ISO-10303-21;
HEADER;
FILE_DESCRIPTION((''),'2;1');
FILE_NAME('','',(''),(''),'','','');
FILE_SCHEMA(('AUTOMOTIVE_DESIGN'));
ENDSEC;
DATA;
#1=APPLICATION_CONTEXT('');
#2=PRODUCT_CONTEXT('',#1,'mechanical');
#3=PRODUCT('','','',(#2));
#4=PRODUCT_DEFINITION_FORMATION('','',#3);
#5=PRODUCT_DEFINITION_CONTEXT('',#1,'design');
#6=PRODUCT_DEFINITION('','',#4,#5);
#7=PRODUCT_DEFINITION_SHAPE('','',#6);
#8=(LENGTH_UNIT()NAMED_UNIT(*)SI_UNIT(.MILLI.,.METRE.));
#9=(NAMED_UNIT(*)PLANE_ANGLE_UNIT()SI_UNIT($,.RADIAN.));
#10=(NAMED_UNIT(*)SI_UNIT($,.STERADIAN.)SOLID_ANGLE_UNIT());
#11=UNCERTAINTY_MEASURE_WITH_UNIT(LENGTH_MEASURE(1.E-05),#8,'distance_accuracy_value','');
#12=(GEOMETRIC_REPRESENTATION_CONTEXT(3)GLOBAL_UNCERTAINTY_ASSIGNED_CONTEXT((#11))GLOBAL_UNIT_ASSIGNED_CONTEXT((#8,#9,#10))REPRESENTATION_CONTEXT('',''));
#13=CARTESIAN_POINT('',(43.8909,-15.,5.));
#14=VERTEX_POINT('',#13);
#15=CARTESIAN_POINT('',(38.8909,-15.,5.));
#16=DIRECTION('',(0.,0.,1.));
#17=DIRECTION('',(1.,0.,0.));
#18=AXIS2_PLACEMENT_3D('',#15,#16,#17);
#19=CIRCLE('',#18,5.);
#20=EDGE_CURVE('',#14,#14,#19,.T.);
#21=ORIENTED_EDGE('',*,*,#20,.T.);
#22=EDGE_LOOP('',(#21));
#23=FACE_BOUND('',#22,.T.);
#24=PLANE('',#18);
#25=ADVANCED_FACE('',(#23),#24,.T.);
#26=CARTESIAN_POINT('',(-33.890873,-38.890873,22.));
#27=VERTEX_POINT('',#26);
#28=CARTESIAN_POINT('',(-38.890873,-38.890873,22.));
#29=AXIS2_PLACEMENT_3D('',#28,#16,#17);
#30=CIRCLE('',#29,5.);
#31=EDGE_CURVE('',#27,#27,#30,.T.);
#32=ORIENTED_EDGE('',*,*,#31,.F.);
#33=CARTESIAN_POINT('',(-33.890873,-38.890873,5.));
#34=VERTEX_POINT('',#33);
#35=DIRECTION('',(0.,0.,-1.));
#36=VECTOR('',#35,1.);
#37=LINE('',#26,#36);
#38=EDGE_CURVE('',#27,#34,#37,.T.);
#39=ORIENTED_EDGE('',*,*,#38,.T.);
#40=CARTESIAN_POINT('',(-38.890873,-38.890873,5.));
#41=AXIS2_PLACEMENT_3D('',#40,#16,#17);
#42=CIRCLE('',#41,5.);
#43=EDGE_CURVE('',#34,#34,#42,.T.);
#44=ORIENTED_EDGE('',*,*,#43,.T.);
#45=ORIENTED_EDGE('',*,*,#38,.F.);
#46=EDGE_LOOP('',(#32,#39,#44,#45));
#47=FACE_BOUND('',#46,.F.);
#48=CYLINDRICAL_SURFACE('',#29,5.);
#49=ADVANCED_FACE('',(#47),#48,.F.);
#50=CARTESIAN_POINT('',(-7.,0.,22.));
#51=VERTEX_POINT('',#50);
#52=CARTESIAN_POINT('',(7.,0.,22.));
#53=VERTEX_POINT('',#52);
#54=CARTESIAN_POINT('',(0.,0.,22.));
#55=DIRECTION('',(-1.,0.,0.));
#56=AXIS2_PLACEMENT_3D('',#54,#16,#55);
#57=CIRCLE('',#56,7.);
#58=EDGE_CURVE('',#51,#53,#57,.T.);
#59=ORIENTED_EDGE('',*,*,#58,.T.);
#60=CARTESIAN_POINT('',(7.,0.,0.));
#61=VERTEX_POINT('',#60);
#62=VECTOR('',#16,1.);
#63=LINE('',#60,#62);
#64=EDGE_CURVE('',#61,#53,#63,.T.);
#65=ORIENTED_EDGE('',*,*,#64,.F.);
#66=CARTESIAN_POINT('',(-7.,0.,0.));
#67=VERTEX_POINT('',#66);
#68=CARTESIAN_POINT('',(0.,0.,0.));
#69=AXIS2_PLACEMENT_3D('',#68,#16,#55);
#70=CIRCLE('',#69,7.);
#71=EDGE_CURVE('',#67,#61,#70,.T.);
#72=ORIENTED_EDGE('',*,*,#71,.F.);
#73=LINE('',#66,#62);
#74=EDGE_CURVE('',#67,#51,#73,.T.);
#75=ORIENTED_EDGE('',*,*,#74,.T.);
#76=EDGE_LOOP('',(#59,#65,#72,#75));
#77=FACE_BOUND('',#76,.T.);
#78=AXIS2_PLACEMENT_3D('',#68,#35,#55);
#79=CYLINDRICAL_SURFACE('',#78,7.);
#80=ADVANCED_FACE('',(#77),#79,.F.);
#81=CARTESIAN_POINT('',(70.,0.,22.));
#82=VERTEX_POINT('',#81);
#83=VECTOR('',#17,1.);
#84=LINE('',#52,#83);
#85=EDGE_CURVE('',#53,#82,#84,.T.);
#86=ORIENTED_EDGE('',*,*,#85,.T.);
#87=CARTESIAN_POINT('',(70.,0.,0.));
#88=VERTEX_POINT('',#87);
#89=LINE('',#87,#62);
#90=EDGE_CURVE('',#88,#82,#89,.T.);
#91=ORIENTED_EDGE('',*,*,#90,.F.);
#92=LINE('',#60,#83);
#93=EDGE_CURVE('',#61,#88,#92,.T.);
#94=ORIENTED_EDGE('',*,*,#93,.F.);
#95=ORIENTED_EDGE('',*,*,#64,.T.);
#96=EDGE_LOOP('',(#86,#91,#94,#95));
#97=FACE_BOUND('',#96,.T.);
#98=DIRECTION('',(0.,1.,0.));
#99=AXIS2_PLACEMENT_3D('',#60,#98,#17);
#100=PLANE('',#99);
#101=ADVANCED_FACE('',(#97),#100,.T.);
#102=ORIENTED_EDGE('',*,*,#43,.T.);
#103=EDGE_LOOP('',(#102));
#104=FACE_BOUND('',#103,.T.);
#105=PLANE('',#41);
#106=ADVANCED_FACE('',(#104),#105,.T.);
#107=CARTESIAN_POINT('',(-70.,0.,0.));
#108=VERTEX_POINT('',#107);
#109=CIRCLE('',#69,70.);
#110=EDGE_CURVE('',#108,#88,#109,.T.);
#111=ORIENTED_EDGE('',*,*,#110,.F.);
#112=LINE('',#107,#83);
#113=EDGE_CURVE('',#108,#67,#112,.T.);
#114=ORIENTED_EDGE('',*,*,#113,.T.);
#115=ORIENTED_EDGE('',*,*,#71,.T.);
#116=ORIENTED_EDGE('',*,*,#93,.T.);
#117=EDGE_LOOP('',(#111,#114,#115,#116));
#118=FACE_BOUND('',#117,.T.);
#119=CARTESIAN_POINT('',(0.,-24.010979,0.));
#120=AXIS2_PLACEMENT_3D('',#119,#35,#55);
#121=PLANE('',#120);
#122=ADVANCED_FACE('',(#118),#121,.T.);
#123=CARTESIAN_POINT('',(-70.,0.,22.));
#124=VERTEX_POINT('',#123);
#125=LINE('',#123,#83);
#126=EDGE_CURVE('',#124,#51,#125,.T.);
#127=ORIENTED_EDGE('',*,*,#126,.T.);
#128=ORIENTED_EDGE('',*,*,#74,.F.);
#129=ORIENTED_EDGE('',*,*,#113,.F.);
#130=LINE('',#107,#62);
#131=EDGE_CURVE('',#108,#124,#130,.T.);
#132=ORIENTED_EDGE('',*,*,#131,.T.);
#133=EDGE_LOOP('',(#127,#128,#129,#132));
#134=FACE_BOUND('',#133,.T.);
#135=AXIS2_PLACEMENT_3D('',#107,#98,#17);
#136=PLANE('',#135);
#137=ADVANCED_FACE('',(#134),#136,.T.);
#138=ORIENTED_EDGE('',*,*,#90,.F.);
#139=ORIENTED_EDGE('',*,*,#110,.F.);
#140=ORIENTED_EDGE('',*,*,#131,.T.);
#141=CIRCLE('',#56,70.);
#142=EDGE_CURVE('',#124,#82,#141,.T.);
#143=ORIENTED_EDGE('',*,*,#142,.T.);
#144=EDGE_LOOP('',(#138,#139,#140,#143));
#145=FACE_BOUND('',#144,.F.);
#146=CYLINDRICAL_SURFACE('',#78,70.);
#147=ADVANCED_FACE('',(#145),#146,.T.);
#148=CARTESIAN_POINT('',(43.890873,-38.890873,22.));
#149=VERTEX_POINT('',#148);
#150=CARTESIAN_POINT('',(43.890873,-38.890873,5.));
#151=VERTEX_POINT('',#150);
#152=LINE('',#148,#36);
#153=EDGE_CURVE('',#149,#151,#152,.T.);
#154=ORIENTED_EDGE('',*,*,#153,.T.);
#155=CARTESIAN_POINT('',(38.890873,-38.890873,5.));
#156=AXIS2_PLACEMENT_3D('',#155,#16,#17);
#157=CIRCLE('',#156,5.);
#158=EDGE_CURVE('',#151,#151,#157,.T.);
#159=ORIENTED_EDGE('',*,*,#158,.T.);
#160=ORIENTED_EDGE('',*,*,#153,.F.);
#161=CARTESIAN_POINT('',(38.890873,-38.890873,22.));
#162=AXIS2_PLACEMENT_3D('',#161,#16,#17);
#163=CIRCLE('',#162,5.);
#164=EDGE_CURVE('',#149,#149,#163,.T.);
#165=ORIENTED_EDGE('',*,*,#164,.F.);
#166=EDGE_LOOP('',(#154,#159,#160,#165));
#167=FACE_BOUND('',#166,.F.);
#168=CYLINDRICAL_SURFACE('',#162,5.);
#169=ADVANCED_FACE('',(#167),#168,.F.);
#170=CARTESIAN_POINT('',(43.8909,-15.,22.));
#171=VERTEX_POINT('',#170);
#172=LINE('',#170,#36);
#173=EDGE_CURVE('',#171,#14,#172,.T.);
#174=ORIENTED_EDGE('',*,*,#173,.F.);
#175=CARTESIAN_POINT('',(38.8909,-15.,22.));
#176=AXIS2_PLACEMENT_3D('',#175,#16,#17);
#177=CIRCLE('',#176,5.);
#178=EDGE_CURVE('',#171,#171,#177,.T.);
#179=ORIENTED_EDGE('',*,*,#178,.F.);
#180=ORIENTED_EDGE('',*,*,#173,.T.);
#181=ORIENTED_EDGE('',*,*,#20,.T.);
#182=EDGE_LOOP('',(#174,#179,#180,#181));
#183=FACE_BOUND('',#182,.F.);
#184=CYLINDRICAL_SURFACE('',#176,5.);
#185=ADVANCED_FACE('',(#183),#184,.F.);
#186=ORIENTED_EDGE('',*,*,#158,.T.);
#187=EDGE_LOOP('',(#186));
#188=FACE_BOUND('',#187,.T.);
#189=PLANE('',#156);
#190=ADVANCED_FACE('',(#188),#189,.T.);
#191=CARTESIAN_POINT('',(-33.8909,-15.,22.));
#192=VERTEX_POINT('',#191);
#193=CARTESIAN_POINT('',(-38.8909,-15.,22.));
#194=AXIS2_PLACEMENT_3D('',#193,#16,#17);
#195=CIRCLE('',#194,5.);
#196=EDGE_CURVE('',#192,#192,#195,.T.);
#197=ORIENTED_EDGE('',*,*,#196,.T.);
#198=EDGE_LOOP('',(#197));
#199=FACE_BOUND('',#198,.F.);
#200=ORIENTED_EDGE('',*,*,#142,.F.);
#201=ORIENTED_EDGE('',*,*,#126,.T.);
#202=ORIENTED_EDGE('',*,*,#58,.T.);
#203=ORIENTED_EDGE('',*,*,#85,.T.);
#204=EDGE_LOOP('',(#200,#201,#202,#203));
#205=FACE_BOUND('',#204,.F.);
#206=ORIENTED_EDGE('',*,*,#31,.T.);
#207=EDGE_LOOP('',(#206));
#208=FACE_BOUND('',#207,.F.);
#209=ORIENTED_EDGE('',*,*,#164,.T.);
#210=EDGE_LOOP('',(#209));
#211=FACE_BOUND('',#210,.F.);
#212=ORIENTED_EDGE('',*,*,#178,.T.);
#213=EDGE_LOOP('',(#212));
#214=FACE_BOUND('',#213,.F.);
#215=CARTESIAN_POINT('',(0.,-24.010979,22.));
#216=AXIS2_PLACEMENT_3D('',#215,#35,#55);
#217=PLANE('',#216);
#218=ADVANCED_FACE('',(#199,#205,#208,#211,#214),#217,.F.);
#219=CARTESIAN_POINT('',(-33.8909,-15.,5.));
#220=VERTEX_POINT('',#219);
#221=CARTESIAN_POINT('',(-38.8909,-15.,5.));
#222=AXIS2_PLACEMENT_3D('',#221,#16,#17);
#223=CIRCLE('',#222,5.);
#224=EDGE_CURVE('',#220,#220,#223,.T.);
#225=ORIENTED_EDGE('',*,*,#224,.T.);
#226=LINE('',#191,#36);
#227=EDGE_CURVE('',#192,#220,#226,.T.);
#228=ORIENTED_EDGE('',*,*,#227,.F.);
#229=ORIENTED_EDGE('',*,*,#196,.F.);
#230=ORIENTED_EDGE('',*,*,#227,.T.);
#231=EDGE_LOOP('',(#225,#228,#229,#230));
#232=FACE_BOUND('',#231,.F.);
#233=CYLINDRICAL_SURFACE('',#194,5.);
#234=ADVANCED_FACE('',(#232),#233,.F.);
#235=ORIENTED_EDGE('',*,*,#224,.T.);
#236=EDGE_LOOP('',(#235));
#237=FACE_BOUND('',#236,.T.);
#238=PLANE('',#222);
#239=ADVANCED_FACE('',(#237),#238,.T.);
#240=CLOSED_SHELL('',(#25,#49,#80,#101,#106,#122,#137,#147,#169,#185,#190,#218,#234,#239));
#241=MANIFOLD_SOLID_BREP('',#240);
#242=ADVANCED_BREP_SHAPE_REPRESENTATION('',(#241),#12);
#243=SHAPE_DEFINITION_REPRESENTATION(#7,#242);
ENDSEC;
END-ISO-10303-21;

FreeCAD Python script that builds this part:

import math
import FreeCAD as App
import Part
import Sketcher
from FreeCAD import Vector

doc = App.newDocument("Part")
body = doc.addObject("PartDesign::Body", "Body")

# Sketch on XY plane
sketch1 = body.newObject("Sketcher::SketchObject", "Sketch")
sketch1.AttachmentSupport = (doc.getObject("XY_Plane"), [""])
sketch1.MapMode = "FlatFace"
sketch1.addGeometry(Part.ArcOfCircle(Part.Circle(Vector(0, 0, 0), Vector(0, 0, 1), 7), math.radians(180), math.radians(360)), False)
sketch1.addGeometry(Part.LineSegment(Vector(-7, 0, 0), Vector(-70, 0, 0)), False)
sketch1.addGeometry(Part.ArcOfCircle(Part.Circle(Vector(0, 0, 0), Vector(0, 0, 1), 70), math.radians(180), math.radians(360)), False)
sketch1.addGeometry(Part.LineSegment(Vector(70, 0, 0), Vector(7, 0, 0)), False)
sketch1.addConstraint(Sketcher.Constraint("Coincident", 0, 1, 1, 1))
sketch1.addConstraint(Sketcher.Constraint("Coincident", 1, 2, 2, 1))
sketch1.addConstraint(Sketcher.Constraint("Coincident", 2, 2, 3, 1))
sketch1.addConstraint(Sketcher.Constraint("Coincident", 3, 2, 0, 2))
sketch1.addConstraint(Sketcher.Constraint("Horizontal", 1))
sketch1.addConstraint(Sketcher.Constraint("Horizontal", 3))
sketch1.addConstraint(Sketcher.Constraint("Coincident", 0, 3, -1, 1))
sketch1.addConstraint(Sketcher.Constraint("Coincident", 2, 3, -1, 1))
sketch1.addConstraint(Sketcher.Constraint("PointOnObject", 0, 1, -1))
sketch1.addConstraint(Sketcher.Constraint("PointOnObject", 2, 2, -1))
sketch1.addConstraint(Sketcher.Constraint("Radius", 0, 7.0))
sketch1.addConstraint(Sketcher.Constraint("Radius", 2, 70.0))
pad1 = body.newObject("PartDesign::Pad", "Pad")
pad1.Profile = sketch1
pad1.Length = 22

# Sketch on XY plane
sketch2 = body.newObject("Sketcher::SketchObject", "Sketch001")
sketch2.AttachmentSupport = (doc.getObject("XY_Plane"), [""])
sketch2.MapMode = "FlatFace"
sketch2.AttachmentOffset = App.Placement(Vector(0, 0, 22), App.Rotation())
sketch2.addGeometry(Part.Circle(Vector(-39, -39, 0), Vector(0, 0, 1), 5), False)
sketch2.addGeometry(Part.Circle(Vector(39, -39, 0), Vector(0, 0, 1), 5), False)
sketch2.addGeometry(Part.Circle(Vector(-39, -15, 0), Vector(0, 0, 1), 5), False)
sketch2.addGeometry(Part.Circle(Vector(39, -15, 0), Vector(0, 0, 1), 5), False)
sketch2.addConstraint(Sketcher.Constraint("Equal", 0, 1))
sketch2.addConstraint(Sketcher.Constraint("Equal", 1, 2))
sketch2.addConstraint(Sketcher.Constraint("Equal", 2, 3))
sketch2.addConstraint(Sketcher.Constraint("Symmetric", 0, 3, 1, 3, -2))
sketch2.addConstraint(Sketcher.Constraint("Symmetric", 2, 3, 3, 3, -2))
sketch2.addConstraint(Sketcher.Constraint("Diameter", 0, 10.0))
sketch2.addConstraint(Sketcher.Constraint("DistanceY", 2, 3, -1, 1, 15.0))
sketch2.addConstraint(Sketcher.Constraint("DistanceX", 2, 3, -1, 1, 38.8909))
sketch2.addConstraint(Sketcher.Constraint("DistanceX", 0, 3, -1, 1, 38.890873))
sketch2.addConstraint(Sketcher.Constraint("DistanceY", 0, 3, -1, 1, 38.890873))
pad2 = body.newObject("PartDesign::Pad", "Pad001")
pad2.Profile = sketch2
pad2.Length = 17
pad2.Reversed = True

# Sketch on XY plane
sketch3 = body.newObject("Sketcher::SketchObject", "Sketch002")
sketch3.AttachmentSupport = (doc.getObject("XY_Plane"), [""])
sketch3.MapMode = "FlatFace"
sketch3.AttachmentOffset = App.Placement(Vector(0, 0, 22), App.Rotation())
sketch3.addGeometry(Part.Circle(Vector(-39, -39, 0), Vector(0, 0, 1), 5), False)
sketch3.addGeometry(Part.Circle(Vector(39, -39, 0), Vector(0, 0, 1), 5), False)
sketch3.addGeometry(Part.Circle(Vector(-39, -15, 0), Vector(0, 0, 1), 5), False)
sketch3.addGeometry(Part.Circle(Vector(39, -15, 0), Vector(0, 0, 1), 5), False)
sketch3.addConstraint(Sketcher.Constraint("Equal", 0, 1))
sketch3.addConstraint(Sketcher.Constraint("Equal", 1, 2))
sketch3.addConstraint(Sketcher.Constraint("Equal", 2, 3))
sketch3.addConstraint(Sketcher.Constraint("Symmetric", 0, 3, 1, 3, -2))
sketch3.addConstraint(Sketcher.Constraint("Symmetric", 2, 3, 3, 3, -2))
sketch3.addConstraint(Sketcher.Constraint("Diameter", 0, 10.0))
sketch3.addConstraint(Sketcher.Constraint("DistanceY", 2, 3, -1, 1, 15.0))
sketch3.addConstraint(Sketcher.Constraint("DistanceX", 2, 3, -1, 1, 38.8909))
sketch3.addConstraint(Sketcher.Constraint("DistanceX", 0, 3, -1, 1, 38.890873))
sketch3.addConstraint(Sketcher.Constraint("DistanceY", 0, 3, -1, 1, 38.890873))
pocket1 = body.newObject("PartDesign::Pocket", "Pocket")
pocket1.Profile = sketch3
pocket1.Length = 17

doc.recompute()
